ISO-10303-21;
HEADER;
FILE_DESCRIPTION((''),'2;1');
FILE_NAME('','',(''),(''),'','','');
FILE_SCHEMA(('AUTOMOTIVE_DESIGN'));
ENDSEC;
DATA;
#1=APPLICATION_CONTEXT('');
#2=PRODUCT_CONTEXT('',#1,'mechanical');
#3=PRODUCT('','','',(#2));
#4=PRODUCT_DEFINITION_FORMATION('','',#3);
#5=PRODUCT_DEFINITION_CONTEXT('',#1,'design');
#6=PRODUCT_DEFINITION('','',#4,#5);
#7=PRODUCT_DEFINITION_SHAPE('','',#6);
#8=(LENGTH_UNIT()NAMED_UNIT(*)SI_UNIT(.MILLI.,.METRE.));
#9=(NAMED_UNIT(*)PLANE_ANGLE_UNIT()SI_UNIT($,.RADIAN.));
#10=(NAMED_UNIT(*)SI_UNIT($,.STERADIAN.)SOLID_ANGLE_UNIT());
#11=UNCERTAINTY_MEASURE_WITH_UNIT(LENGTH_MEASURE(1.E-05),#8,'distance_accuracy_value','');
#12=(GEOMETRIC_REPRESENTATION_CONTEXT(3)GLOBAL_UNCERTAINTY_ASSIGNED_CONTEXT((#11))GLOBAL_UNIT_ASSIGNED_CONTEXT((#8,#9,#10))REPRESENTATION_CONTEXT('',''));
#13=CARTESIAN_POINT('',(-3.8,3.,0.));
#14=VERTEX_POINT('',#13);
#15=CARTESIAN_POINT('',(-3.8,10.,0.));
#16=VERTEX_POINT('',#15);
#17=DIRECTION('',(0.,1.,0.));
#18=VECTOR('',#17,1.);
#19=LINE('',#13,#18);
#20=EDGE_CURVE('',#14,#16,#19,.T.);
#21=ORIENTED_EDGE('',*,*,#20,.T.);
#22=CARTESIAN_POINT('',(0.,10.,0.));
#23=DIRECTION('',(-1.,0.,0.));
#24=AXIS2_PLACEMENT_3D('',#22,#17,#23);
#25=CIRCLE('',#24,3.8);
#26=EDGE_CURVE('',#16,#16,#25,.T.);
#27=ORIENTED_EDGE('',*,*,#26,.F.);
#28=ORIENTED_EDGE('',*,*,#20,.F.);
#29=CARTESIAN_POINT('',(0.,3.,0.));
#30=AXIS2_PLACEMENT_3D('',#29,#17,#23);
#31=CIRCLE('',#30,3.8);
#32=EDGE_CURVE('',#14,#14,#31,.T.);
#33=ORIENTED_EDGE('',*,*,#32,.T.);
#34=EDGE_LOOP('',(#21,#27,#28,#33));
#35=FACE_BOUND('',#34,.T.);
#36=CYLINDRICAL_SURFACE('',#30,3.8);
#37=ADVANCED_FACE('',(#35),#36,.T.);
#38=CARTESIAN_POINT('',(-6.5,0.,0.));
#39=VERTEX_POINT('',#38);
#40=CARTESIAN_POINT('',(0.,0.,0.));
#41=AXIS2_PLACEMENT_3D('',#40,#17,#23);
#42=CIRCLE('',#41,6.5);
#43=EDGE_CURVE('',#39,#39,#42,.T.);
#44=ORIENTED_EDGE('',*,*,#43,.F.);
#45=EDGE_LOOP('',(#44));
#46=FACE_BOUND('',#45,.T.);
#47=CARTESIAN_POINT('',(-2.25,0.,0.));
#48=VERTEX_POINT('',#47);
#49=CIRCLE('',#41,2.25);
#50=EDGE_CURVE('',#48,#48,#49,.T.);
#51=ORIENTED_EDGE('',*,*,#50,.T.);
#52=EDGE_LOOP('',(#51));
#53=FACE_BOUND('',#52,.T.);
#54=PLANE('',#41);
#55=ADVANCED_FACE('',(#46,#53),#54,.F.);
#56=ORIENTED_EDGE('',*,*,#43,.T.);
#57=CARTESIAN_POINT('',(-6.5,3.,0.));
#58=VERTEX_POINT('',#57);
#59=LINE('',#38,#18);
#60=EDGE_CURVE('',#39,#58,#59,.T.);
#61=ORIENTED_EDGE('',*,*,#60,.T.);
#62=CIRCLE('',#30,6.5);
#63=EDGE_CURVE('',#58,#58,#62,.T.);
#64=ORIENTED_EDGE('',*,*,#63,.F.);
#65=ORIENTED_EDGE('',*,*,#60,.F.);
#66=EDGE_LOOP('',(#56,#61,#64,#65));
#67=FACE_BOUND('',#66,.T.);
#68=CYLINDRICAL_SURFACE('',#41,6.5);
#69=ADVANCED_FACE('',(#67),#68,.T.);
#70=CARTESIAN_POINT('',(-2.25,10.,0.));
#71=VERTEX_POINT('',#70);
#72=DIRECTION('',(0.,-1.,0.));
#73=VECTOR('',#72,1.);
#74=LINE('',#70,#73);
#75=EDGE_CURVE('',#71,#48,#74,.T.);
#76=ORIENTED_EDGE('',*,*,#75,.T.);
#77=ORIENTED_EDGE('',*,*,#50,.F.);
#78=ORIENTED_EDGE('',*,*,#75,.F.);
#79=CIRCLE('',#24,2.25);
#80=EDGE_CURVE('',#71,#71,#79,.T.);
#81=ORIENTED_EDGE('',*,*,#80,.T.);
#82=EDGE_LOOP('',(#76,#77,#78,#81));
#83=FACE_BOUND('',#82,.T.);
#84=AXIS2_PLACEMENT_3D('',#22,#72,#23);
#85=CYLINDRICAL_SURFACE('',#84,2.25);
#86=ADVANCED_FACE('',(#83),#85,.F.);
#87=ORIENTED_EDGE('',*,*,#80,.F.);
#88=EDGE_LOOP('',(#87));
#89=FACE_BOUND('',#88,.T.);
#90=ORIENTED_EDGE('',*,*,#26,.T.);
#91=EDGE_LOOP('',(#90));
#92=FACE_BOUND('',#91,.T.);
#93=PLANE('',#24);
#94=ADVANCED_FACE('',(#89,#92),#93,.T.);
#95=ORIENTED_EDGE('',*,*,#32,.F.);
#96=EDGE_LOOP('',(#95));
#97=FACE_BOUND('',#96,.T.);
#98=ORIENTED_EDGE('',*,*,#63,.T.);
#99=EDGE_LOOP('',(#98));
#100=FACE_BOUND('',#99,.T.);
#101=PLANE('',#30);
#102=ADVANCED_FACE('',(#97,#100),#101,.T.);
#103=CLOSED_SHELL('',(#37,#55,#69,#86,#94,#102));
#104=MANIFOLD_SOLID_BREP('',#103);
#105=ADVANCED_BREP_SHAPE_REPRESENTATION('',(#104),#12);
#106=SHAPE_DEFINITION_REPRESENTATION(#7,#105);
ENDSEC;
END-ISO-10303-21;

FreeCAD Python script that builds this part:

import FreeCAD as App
import Part
import Sketcher


def add_polygon(sketch, points):
    """Adds a closed chain of lines whose ends are joined by coincident constraints."""
    first, n = sketch.GeometryCount, len(points)
    for a, b in zip(points, points[1:] + points[:1]):
        sketch.addGeometry(Part.LineSegment(App.Vector(*a, 0), App.Vector(*b, 0)), False)
    for i in range(n):
        sketch.addConstraint(Sketcher.Constraint("Coincident", first + i, 2, first + (i + 1) % n, 1))

doc = App.newDocument("Part")
params = doc.addObject("Spreadsheet::Sheet", "Params")
for row, (alias, value) in enumerate([
    ("sketch1_height", "7 mm"),
    ("sketch1_height2", "3 mm"),
    ("revolution_angle", "360 deg"),
], start=1):
    params.set(f"A{row}", alias)
    params.set(f"B{row}", "=" + value)
    params.setAlias(f"B{row}", alias)

body = doc.addObject("PartDesign::Body", "Body")

sketch1 = body.newObject("Sketcher::SketchObject", "Sketch")
sketch1.AttachmentSupport = (doc.getObject("XY_Plane"), [""])
sketch1.MapMode = "FlatFace"
add_polygon(sketch1, [(-2.2, 0), (-2.2, 10), (-3.8, 10), (-3.8, 3), (-6.5, 3), (-6.5, 0)])
sketch1.addConstraint([
    Sketcher.Constraint("Vertical", 0),
    Sketcher.Constraint("Horizontal", 1),
    Sketcher.Constraint("Vertical", 2),
    Sketcher.Constraint("Horizontal", 3),
    Sketcher.Constraint("Vertical", 4),
    Sketcher.Constraint("Horizontal", 5),
    Sketcher.Constraint("PointOnObject", 4, 2, -1),
    Sketcher.Constraint("DistanceY", 2, 2, 2, 1, 7.0),
    Sketcher.Constraint("DistanceY", 4, 2, 4, 1, 3.0),
    Sketcher.Constraint("DistanceX", 1, 2, -1, 1, 3.8),
    Sketcher.Constraint("DistanceX", 3, 2, -1, 1, 6.5),
    Sketcher.Constraint("DistanceX", 0, 2, -1, 1, 2.25),
])
sketch1.setExpression("Constraints[13]", "Params.sketch1_height")
sketch1.setExpression("Constraints[14]", "Params.sketch1_height2")
revolution = body.newObject("PartDesign::Revolution", "Revolution")
revolution.Profile = sketch1
revolution.ReferenceAxis = (sketch1, ["V_Axis"])
revolution.setExpression("Angle", "Params.revolution_angle")

doc.recompute()
